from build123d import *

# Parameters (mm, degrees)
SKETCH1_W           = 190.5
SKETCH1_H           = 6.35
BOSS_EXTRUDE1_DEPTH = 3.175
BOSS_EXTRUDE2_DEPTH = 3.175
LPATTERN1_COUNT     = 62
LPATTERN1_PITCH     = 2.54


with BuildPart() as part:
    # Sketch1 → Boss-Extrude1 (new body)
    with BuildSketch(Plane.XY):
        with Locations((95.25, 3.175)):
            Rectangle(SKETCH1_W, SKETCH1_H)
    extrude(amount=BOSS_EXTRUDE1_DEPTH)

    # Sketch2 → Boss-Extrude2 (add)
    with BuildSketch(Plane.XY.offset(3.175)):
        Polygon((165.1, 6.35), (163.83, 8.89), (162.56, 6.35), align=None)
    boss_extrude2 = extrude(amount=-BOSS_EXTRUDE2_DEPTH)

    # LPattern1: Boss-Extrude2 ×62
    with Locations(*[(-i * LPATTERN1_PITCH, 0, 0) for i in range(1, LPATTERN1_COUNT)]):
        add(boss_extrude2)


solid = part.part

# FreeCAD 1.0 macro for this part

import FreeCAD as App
import Part
import Sketcher

V = App.Vector
Q = App.Units.Quantity

doc = App.newDocument("Part")
params = doc.addObject("Spreadsheet::Sheet", "Params")
for row, (alias, value) in enumerate([
    ("sketch1_width", "7.5 in"),
    ("sketch1_height", "0.25 in"),
    ("pad1_length", "0.125 in"),
    ("sketch2_width", "0.1 in"),
    ("pad2_length", "0.125 in"),
    ("linearpattern_pitch", "0.1 in"),
], start=1):
    params.set(f"A{row}", alias)
    params.set(f"B{row}", "=" + value)
    params.setAlias(f"B{row}", alias)

body = doc.addObject("PartDesign::Body", "Body")

# Sketch on XY plane
sketch1 = doc.addObject("Sketcher::SketchObject", "Sketch")
body.addObject(sketch1)
sketch1.AttachmentSupport = (doc.XY_Plane, [""])
sketch1.MapMode = "FlatFace"
sketch1.addGeometry([
    Part.LineSegment(V(0, 6, 0), V(0, 0, 0)),
    Part.LineSegment(V(0, 0, 0), V(190, 0, 0)),
    Part.LineSegment(V(190, 0, 0), V(190, 6, 0)),
    Part.LineSegment(V(190, 6, 0), V(0, 6, 0)),
], False)
sketch1.addConstraint([
    Sketcher.Constraint("Coincident", 0, 2, 1, 1),
    Sketcher.Constraint("Coincident", 1, 2, 2, 1),
    Sketcher.Constraint("Coincident", 2, 2, 3, 1),
    Sketcher.Constraint("Coincident", 3, 2, 0, 1),
    Sketcher.Constraint("Vertical", 0),
    Sketcher.Constraint("Horizontal", 1),
    Sketcher.Constraint("Vertical", 2),
    Sketcher.Constraint("Horizontal", 3),
    Sketcher.Constraint("Coincident", 0, 2, -1, 1),
    Sketcher.Constraint("DistanceX", 1, 1, 1, 2, Q("7.5 in")),
    Sketcher.Constraint("DistanceY", 0, 2, 0, 1, Q("0.25 in")),
])
sketch1.setExpression("Constraints[9]", "Params.sketch1_width")
sketch1.setExpression("Constraints[10]", "Params.sketch1_height")
pad1 = doc.addObject("PartDesign::Pad", "Pad")
body.addObject(pad1)
pad1.Profile = sketch1
pad1.setExpression("Length", "Params.pad1_length")

# Sketch on XY plane
sketch2 = doc.addObject("Sketcher::SketchObject", "Sketch001")
body.addObject(sketch2)
sketch2.AttachmentSupport = (doc.XY_Plane, [""])
sketch2.MapMode = "FlatFace"
sketch2.AttachmentOffset = App.Placement(V(0, 0, 0.125 * 25.4), App.Rotation())
sketch2.addGeometry([
    Part.LineSegment(V(165.1, 6.3, 0), V(163.8, 8.9, 0)),
    Part.LineSegment(V(163.8, 8.9, 0), V(162.6, 6.3, 0)),
    Part.LineSegment(V(162.6, 6.3, 0), V(165.1, 6.3, 0)),
], False)
sketch2.addConstraint([
    Sketcher.Constraint("Coincident", 0, 2, 1, 1),
    Sketcher.Constraint("Coincident", 1, 2, 2, 1),
    Sketcher.Constraint("Coincident", 2, 2, 0, 1),
    Sketcher.Constraint("Horizontal", 2),
    Sketcher.Constraint("Equal", 0, 1),
    Sketcher.Constraint("DistanceX", 2, 1, 2, 2, Q("0.1 in")),
    Sketcher.Constraint("DistanceX", -1, 1, 1, 2, Q("6.4 in")),
    Sketcher.Constraint("DistanceY", 1, 2, 0, 2, Q("0.1 in")),
    Sketcher.Constraint("DistanceY", -1, 1, 0, 2, Q("0.35 in")),
])
sketch2.setExpression("Constraints[5]", "Params.sketch2_width")
pad2 = doc.addObject("PartDesign::Pad", "Pad001")
body.addObject(pad2)
pad2.Profile = sketch2
pad2.setExpression("Length", "Params.pad2_length")
pad2.Reversed = True
doc.recompute()

linearpattern = doc.addObject("PartDesign::LinearPattern", "LinearPattern")
body.addObject(linearpattern)
linearpattern.Originals = [pad2]
linearpattern.Direction = (doc.X_Axis, [""])
linearpattern.Mode = "offset"
linearpattern.setExpression("Offset", "Params.linearpattern_pitch")
linearpattern.Occurrences = 62
linearpattern.Reversed = True
body.Tip = linearpattern

doc.recompute()
